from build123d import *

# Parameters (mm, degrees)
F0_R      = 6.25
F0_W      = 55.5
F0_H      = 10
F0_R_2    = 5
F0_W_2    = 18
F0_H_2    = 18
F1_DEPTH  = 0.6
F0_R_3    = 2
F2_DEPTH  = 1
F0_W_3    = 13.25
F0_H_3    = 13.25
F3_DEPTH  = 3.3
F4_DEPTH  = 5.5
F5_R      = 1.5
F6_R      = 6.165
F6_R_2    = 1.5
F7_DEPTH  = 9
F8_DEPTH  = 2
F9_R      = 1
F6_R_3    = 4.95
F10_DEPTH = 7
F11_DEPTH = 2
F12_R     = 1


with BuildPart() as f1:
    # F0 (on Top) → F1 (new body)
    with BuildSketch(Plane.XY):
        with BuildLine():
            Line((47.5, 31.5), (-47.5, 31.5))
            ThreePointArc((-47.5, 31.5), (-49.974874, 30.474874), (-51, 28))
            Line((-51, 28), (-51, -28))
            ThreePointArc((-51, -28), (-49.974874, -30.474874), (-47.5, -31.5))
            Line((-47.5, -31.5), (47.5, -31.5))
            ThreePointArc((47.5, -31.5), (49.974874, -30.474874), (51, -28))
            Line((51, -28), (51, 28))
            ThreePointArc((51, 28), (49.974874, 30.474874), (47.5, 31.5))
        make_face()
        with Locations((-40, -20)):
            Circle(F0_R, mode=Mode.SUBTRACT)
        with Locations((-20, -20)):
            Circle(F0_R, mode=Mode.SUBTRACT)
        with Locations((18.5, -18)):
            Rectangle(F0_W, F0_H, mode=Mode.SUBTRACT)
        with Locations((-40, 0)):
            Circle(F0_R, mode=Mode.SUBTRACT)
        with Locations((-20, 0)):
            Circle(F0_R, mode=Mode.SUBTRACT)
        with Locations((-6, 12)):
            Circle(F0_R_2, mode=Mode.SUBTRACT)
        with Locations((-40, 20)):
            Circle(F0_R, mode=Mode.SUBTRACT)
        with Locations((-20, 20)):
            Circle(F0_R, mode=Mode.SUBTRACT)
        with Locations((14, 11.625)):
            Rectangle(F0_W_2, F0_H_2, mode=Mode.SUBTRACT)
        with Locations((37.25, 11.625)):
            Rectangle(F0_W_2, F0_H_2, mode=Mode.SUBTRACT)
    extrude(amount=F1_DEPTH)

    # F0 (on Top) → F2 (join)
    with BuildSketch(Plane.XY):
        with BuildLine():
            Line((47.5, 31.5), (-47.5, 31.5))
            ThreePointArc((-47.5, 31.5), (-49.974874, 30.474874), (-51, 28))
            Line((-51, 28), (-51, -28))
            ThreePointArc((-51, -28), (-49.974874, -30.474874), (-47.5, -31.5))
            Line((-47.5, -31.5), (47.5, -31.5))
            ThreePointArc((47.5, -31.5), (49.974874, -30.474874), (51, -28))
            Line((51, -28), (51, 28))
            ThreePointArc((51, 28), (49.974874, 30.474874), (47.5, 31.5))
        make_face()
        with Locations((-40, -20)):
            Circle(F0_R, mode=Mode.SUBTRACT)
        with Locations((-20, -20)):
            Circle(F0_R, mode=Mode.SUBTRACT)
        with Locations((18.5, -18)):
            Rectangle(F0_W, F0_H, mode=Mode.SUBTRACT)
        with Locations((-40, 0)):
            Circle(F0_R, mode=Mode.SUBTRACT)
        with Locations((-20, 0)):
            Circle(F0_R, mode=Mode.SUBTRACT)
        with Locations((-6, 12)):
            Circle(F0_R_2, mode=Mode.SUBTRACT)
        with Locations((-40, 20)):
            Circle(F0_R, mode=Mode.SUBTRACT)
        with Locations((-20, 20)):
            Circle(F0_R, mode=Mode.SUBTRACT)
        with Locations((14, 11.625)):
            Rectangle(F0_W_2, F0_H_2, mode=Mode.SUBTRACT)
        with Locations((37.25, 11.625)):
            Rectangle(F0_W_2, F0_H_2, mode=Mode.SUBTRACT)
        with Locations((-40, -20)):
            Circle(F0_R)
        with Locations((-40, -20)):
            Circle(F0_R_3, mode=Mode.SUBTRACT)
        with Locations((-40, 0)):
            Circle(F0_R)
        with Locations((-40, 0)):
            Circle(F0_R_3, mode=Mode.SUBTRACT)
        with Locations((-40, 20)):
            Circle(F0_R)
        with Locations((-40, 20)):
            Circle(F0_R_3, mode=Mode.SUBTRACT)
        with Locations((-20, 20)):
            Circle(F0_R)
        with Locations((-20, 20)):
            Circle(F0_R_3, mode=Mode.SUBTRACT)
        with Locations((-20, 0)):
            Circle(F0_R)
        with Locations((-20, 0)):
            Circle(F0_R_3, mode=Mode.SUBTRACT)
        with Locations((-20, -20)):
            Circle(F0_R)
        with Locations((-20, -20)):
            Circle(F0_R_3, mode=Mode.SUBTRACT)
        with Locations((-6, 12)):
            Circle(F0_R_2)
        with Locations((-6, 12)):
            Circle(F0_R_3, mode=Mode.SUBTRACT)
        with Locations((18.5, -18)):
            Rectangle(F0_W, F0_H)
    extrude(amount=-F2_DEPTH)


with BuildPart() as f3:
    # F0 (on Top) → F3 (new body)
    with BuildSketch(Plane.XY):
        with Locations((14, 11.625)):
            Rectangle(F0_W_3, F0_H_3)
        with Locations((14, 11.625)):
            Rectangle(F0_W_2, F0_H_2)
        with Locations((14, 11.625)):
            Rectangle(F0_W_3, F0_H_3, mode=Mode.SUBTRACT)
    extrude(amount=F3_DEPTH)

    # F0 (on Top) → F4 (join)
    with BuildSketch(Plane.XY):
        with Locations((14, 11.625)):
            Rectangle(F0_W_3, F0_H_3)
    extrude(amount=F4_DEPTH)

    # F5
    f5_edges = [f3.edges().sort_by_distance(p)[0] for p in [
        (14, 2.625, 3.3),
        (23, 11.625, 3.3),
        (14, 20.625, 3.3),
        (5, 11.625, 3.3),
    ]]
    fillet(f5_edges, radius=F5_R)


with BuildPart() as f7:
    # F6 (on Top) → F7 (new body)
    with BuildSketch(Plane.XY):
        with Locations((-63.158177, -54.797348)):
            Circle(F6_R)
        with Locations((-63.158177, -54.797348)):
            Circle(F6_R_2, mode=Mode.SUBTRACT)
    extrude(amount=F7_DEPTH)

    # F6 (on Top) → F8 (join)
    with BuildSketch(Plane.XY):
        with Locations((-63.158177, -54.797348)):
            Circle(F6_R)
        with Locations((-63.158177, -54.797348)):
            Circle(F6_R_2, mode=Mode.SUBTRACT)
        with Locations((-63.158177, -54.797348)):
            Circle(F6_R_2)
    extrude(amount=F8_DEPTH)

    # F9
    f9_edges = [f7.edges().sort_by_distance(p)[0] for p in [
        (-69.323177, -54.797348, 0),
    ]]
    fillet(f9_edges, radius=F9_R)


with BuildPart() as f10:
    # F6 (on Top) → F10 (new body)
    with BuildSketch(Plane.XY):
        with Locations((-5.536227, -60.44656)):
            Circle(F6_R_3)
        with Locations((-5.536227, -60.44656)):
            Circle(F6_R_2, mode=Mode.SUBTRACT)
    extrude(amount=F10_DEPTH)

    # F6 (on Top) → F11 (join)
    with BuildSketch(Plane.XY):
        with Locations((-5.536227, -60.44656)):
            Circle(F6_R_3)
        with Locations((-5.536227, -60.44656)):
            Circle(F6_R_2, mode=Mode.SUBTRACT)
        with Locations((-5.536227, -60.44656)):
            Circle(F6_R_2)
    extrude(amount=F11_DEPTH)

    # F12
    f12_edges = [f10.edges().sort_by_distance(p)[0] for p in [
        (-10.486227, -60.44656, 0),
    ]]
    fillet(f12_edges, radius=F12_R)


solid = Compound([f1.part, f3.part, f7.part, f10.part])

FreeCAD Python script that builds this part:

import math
import FreeCAD as App
import Part
import Sketcher
Q = App.Units.Quantity


def edges_at(feature, points):
    """Names of the edges that pass closest to the given points."""
    edges = feature.Shape.Edges
    near = lambda p: min(range(len(edges)), key=lambda i: edges[i].distToShape(Part.Vertex(*p))[0])
    return sorted({f"Edge{near(p) + 1}" for p in points})


def add_polygon(sketch, points):
    """Adds a closed chain of lines whose ends are joined by coincident constraints."""
    first, n = sketch.GeometryCount, len(points)
    for a, b in zip(points, points[1:] + points[:1]):
        sketch.addGeometry(Part.LineSegment(App.Vector(*a, 0), App.Vector(*b, 0)), False)
    for i in range(n):
        sketch.addConstraint(Sketcher.Constraint("Coincident", first + i, 2, first + (i + 1) % n, 1))

doc = App.newDocument("Part")
body = doc.addObject("PartDesign::Body", "Body")

# Sketch on XY plane
sketch1 = body.newObject("Sketcher::SketchObject", "Sketch")
sketch1.AttachmentSupport = (doc.getObject("XY_Plane"), [""])
sketch1.MapMode = "FlatFace"
sketch1.addGeometry(Part.LineSegment(App.Vector(47.5, 31.5, 0), App.Vector(-47.5, 31.5, 0)), False)  # 0
sketch1.addGeometry(Part.ArcOfCircle(Part.Circle(App.Vector(-47.5, 28, 0), App.Vector(0, 0, 1), 3.5), math.radians(90), math.radians(180)), False)  # 1
sketch1.addGeometry(Part.LineSegment(App.Vector(-51, 28, 0), App.Vector(-51, -28, 0)), False)  # 2
sketch1.addGeometry(Part.ArcOfCircle(Part.Circle(App.Vector(-47.5, -28, 0), App.Vector(0, 0, 1), 3.5), math.radians(180), math.radians(270)), False)  # 3
sketch1.addGeometry(Part.LineSegment(App.Vector(-47.5, -31.5, 0), App.Vector(47.5, -31.5, 0)), False)  # 4
sketch1.addGeometry(Part.ArcOfCircle(Part.Circle(App.Vector(47.5, -28, 0), App.Vector(0, 0, 1), 3.5), math.radians(-90), math.radians(0)), False)  # 5
sketch1.addGeometry(Part.LineSegment(App.Vector(51, -28, 0), App.Vector(51, 28, 0)), False)  # 6
sketch1.addGeometry(Part.ArcOfCircle(Part.Circle(App.Vector(47.5, 28, 0), App.Vector(0, 0, 1), 3.5), math.radians(0), math.radians(90)), False)  # 7
sketch1.addGeometry(Part.Circle(App.Vector(-40, -20, 0), App.Vector(0, 0, 1), 6.2), False)  # 8
sketch1.addGeometry(Part.Circle(App.Vector(-20, -20, 0), App.Vector(0, 0, 1), 6.2), False)  # 9
add_polygon(sketch1, [(46.2, -23), (-9.2, -23), (-9.2, -13), (46.2, -13)])  # lines 10-13
sketch1.addGeometry(Part.Circle(App.Vector(-40, 0, 0), App.Vector(0, 0, 1), 6.2), False)  # 14
sketch1.addGeometry(Part.Circle(App.Vector(-20, 0, 0), App.Vector(0, 0, 1), 6.2), False)  # 15
sketch1.addGeometry(Part.Circle(App.Vector(-6, 12, 0), App.Vector(0, 0, 1), 5), False)  # 16
sketch1.addGeometry(Part.Circle(App.Vector(-40, 20, 0), App.Vector(0, 0, 1), 6.2), False)  # 17
sketch1.addGeometry(Part.Circle(App.Vector(-20, 20, 0), App.Vector(0, 0, 1), 6.2), False)  # 18
add_polygon(sketch1, [(23, 2.6), (5, 2.6), (5, 20.6), (23, 20.6)])  # lines 19-22
add_polygon(sketch1, [(46.2, 2.6), (28.2, 2.6), (28.2, 20.6), (46.2, 20.6)])  # lines 23-26
sketch1.addConstraint([
    Sketcher.Constraint("Tangent", 0, 2, 1, 1),
    Sketcher.Constraint("Tangent", 1, 2, 2, 1),
    Sketcher.Constraint("Tangent", 2, 2, 3, 1),
    Sketcher.Constraint("Tangent", 3, 2, 4, 1),
    Sketcher.Constraint("Tangent", 4, 2, 5, 1),
    Sketcher.Constraint("Tangent", 5, 2, 6, 1),
    Sketcher.Constraint("Tangent", 6, 2, 7, 1),
    Sketcher.Constraint("Tangent", 7, 2, 0, 1),
    Sketcher.Constraint("Horizontal", 0),
    Sketcher.Constraint("Vertical", 2),
    Sketcher.Constraint("Horizontal", 4),
    Sketcher.Constraint("Vertical", 6),
    Sketcher.Constraint("Horizontal", 10),
    Sketcher.Constraint("Vertical", 11),
    Sketcher.Constraint("Horizontal", 12),
    Sketcher.Constraint("Vertical", 13),
    Sketcher.Constraint("Horizontal", 19),
    Sketcher.Constraint("Vertical", 20),
    Sketcher.Constraint("Horizontal", 21),
    Sketcher.Constraint("Vertical", 22),
    Sketcher.Constraint("Horizontal", 23),
    Sketcher.Constraint("Vertical", 24),
    Sketcher.Constraint("Horizontal", 25),
    Sketcher.Constraint("Vertical", 26),
    Sketcher.Constraint("Equal", 1, 3),
    Sketcher.Constraint("Equal", 3, 5),
    Sketcher.Constraint("Equal", 5, 7),
    Sketcher.Constraint("Equal", 8, 9),
    Sketcher.Constraint("Equal", 9, 14),
    Sketcher.Constraint("Equal", 14, 15),
    Sketcher.Constraint("Equal", 15, 17),
    Sketcher.Constraint("Equal", 17, 18),
    Sketcher.Constraint("Symmetric", 1, 3, 5, 3, -1, 1),
    Sketcher.Constraint("Symmetric", 8, 3, 17, 3, -1),
    Sketcher.Constraint("Symmetric", 9, 3, 18, 3, -1),
    Sketcher.Constraint("PointOnObject", 14, 3, -1),
    Sketcher.Constraint("PointOnObject", 15, 3, -1),
    Sketcher.Constraint("Horizontal", 8, 3, 9, 3),
    Sketcher.Constraint("Horizontal", 22, 2, 23, 2),
    Sketcher.Constraint("Horizontal", 21, 2, 24, 2),
    Sketcher.Constraint("Vertical", 8, 3, 14, 3),
    Sketcher.Constraint("Vertical", 9, 3, 15, 3),
    Sketcher.Constraint("Vertical", 13, 2, 25, 2),
    Sketcher.Constraint("Equal", 21, 23),
    Sketcher.Constraint("Equal", 25, 20),
    Sketcher.Constraint("Diameter", 16, Q("10 mm")),
    Sketcher.Constraint("Diameter", 8, Q("12.5 mm")),
    Sketcher.Constraint("Radius", 1, Q("3.499999 mm")),
    Sketcher.Constraint("DistanceX", 0, 2, 0, 1, Q("95 mm")),
    Sketcher.Constraint("DistanceX", 19, 2, 19, 1, Q("18 mm")),
    Sketcher.Constraint("DistanceY", 2, 2, 2, 1, Q("56 mm")),
    Sketcher.Constraint("DistanceY", 11, 1, 11, 2, Q("10 mm")),
    Sketcher.Constraint("DistanceX", 10, 2, 10, 1, Q("55.5 mm")),
    Sketcher.Constraint("DistanceX", 8, 3, -1, 1, Q("40 mm")),
    Sketcher.Constraint("DistanceY", 8, 3, -1, 1, Q("20 mm")),
    Sketcher.Constraint("DistanceX", 9, 3, -1, 1, Q("20 mm")),
    Sketcher.Constraint("DistanceX", 16, 3, -1, 1, Q("6 mm")),
    Sketcher.Constraint("DistanceY", -1, 1, 16, 3, Q("12 mm")),
    Sketcher.Constraint("DistanceY", 10, 2, -1, 1, Q("23 mm")),
    Sketcher.Constraint("DistanceX", -1, 1, 19, 2, Q("5 mm")),
    Sketcher.Constraint("DistanceX", 10, 2, -1, 1, Q("9.25 mm")),
    Sketcher.Constraint("DistanceY", -1, 1, 19, 2, Q("2.625 mm")),
])
pad1 = body.newObject("PartDesign::Pad", "Pad")
pad1.Profile = sketch1
pad1.Length = 0.6

# Sketch on XY plane
sketch2 = body.newObject("Sketcher::SketchObject", "Sketch001")
sketch2.AttachmentSupport = (doc.getObject("XY_Plane"), [""])
sketch2.MapMode = "FlatFace"
sketch2.addGeometry(Part.LineSegment(App.Vector(47.5, 31.5, 0), App.Vector(-47.5, 31.5, 0)), False)  # 0
sketch2.addGeometry(Part.ArcOfCircle(Part.Circle(App.Vector(-47.5, 28, 0), App.Vector(0, 0, 1), 3.5), math.radians(90), math.radians(180)), False)  # 1
sketch2.addGeometry(Part.LineSegment(App.Vector(-51, 28, 0), App.Vector(-51, -28, 0)), False)  # 2
sketch2.addGeometry(Part.ArcOfCircle(Part.Circle(App.Vector(-47.5, -28, 0), App.Vector(0, 0, 1), 3.5), math.radians(180), math.radians(270)), False)  # 3
sketch2.addGeometry(Part.LineSegment(App.Vector(-47.5, -31.5, 0), App.Vector(47.5, -31.5, 0)), False)  # 4
sketch2.addGeometry(Part.ArcOfCircle(Part.Circle(App.Vector(47.5, -28, 0), App.Vector(0, 0, 1), 3.5), math.radians(-90), math.radians(0)), False)  # 5
sketch2.addGeometry(Part.LineSegment(App.Vector(51, -28, 0), App.Vector(51, 28, 0)), False)  # 6
sketch2.addGeometry(Part.ArcOfCircle(Part.Circle(App.Vector(47.5, 28, 0), App.Vector(0, 0, 1), 3.5), math.radians(0), math.radians(90)), False)  # 7
sketch2.addGeometry(Part.Circle(App.Vector(-40, -20, 0), App.Vector(0, 0, 1), 2), False)  # 8
sketch2.addGeometry(Part.Circle(App.Vector(-20, -20, 0), App.Vector(0, 0, 1), 2), False)  # 9
sketch2.addGeometry(Part.Circle(App.Vector(-40, 0, 0), App.Vector(0, 0, 1), 2), False)  # 10
sketch2.addGeometry(Part.Circle(App.Vector(-20, 0, 0), App.Vector(0, 0, 1), 2), False)  # 11
sketch2.addGeometry(Part.Circle(App.Vector(-40, 20, 0), App.Vector(0, 0, 1), 2), False)  # 12
sketch2.addGeometry(Part.Circle(App.Vector(-20, 20, 0), App.Vector(0, 0, 1), 2), False)  # 13
sketch2.addGeometry(Part.Circle(App.Vector(-6, 12, 0), App.Vector(0, 0, 1), 2), False)  # 14
add_polygon(sketch2, [(23, 2.6), (5, 2.6), (5, 20.6), (23, 20.6)])  # lines 15-18
add_polygon(sketch2, [(46.2, 2.6), (28.2, 2.6), (28.2, 20.6), (46.2, 20.6)])  # lines 19-22
sketch2.addConstraint([
    Sketcher.Constraint("Tangent", 0, 2, 1, 1),
    Sketcher.Constraint("Tangent", 1, 2, 2, 1),
    Sketcher.Constraint("Tangent", 2, 2, 3, 1),
    Sketcher.Constraint("Tangent", 3, 2, 4, 1),
    Sketcher.Constraint("Tangent", 4, 2, 5, 1),
    Sketcher.Constraint("Tangent", 5, 2, 6, 1),
    Sketcher.Constraint("Tangent", 6, 2, 7, 1),
    Sketcher.Constraint("Tangent", 7, 2, 0, 1),
    Sketcher.Constraint("Horizontal", 0),
    Sketcher.Constraint("Vertical", 2),
    Sketcher.Constraint("Horizontal", 4),
    Sketcher.Constraint("Vertical", 6),
    Sketcher.Constraint("Horizontal", 15),
    Sketcher.Constraint("Vertical", 16),
    Sketcher.Constraint("Horizontal", 17),
    Sketcher.Constraint("Vertical", 18),
    Sketcher.Constraint("Horizontal", 19),
    Sketcher.Constraint("Vertical", 20),
    Sketcher.Constraint("Horizontal", 21),
    Sketcher.Constraint("Vertical", 22),
    Sketcher.Constraint("Equal", 1, 3),
    Sketcher.Constraint("Equal", 3, 5),
    Sketcher.Constraint("Equal", 5, 7),
    Sketcher.Constraint("Equal", 8, 9),
    Sketcher.Constraint("Equal", 9, 10),
    Sketcher.Constraint("Equal", 10, 11),
    Sketcher.Constraint("Equal", 11, 12),
    Sketcher.Constraint("Equal", 12, 13),
    Sketcher.Constraint("Equal", 13, 14),
    Sketcher.Constraint("Symmetric", 1, 3, 5, 3, -1, 1),
    Sketcher.Constraint("Symmetric", 8, 3, 12, 3, -1),
    Sketcher.Constraint("Symmetric", 9, 3, 13, 3, -1),
    Sketcher.Constraint("PointOnObject", 10, 3, -1),
    Sketcher.Constraint("PointOnObject", 11, 3, -1),
    Sketcher.Constraint("Horizontal", 8, 3, 9, 3),
    Sketcher.Constraint("Horizontal", 18, 2, 19, 2),
    Sketcher.Constraint("Horizontal", 17, 2, 20, 2),
    Sketcher.Constraint("Vertical", 8, 3, 10, 3),
    Sketcher.Constraint("Vertical", 9, 3, 11, 3),
    Sketcher.Constraint("Equal", 17, 19),
    Sketcher.Constraint("Equal", 21, 16),
    Sketcher.Constraint("Diameter", 8, Q("4 mm")),
    Sketcher.Constraint("Radius", 1, Q("3.499999 mm")),
    Sketcher.Constraint("DistanceX", 0, 2, 0, 1, Q("95 mm")),
    Sketcher.Constraint("DistanceX", 15, 2, 15, 1, Q("18 mm")),
    Sketcher.Constraint("DistanceY", 2, 2, 2, 1, Q("56 mm")),
    Sketcher.Constraint("DistanceX", 8, 3, -1, 1, Q("40 mm")),
    Sketcher.Constraint("DistanceY", 8, 3, -1, 1, Q("20 mm")),
    Sketcher.Constraint("DistanceX", 9, 3, -1, 1, Q("20 mm")),
    Sketcher.Constraint("DistanceX", 14, 3, -1, 1, Q("6 mm")),
    Sketcher.Constraint("DistanceY", -1, 1, 14, 3, Q("12 mm")),
    Sketcher.Constraint("DistanceX", -1, 1, 15, 2, Q("5 mm")),
    Sketcher.Constraint("DistanceX", -1, 1, 19, 2, Q("28.25 mm")),
    Sketcher.Constraint("DistanceY", -1, 1, 15, 2, Q("2.625 mm")),
])
pad2 = body.newObject("PartDesign::Pad", "Pad001")
pad2.Profile = sketch2
pad2.Length = 1
pad2.Reversed = True
body2 = doc.addObject("PartDesign::Body", "Body001")

# Sketch on XY plane
sketch3 = body2.newObject("Sketcher::SketchObject", "Sketch002")
sketch3.AttachmentSupport = (doc.getObject("XY_Plane001"), [""])
sketch3.MapMode = "FlatFace"
add_polygon(sketch3, [(5, 21), (5, 3), (23, 3), (23, 21)])  # lines 0-3
add_polygon(sketch3, [(21, 5), (7, 5), (7, 18), (21, 18)])  # lines 4-7
sketch3.addConstraint([
    Sketcher.Constraint("Vertical", 0),
    Sketcher.Constraint("Horizontal", 1),
    Sketcher.Constraint("Vertical", 2),
    Sketcher.Constraint("Horizontal", 3),
    Sketcher.Constraint("Horizontal", 4),
    Sketcher.Constraint("Vertical", 5),
    Sketcher.Constraint("Horizontal", 6),
    Sketcher.Constraint("Vertical", 7),
    Sketcher.Constraint("Equal", 3, 0),
    Sketcher.Constraint("Equal", 6, 5),
    Sketcher.Constraint("DistanceX", 1, 1, 1, 2, Q("18 mm")),
    Sketcher.Constraint("DistanceX", -1, 1, 0, 2, Q("5 mm")),
    Sketcher.Constraint("DistanceY", -1, 1, 4, 2, Q("5 mm")),
    Sketcher.Constraint("DistanceX", 4, 2, 4, 1, Q("13.25 mm")),
    Sketcher.Constraint("DistanceY", -1, 1, 0, 2, Q("2.625 mm")),
    Sketcher.Constraint("DistanceX", -1, 1, 4, 2, Q("7.375 mm")),
])
pad3 = body2.newObject("PartDesign::Pad", "Pad002")
pad3.Profile = sketch3
pad3.Length = 3.3

# Sketch on XY plane
sketch4 = body2.newObject("Sketcher::SketchObject", "Sketch003")
sketch4.AttachmentSupport = (doc.getObject("XY_Plane001"), [""])
sketch4.MapMode = "FlatFace"
add_polygon(sketch4, [(7, 18), (7, 5), (21, 5), (21, 18)])  # lines 0-3
sketch4.addConstraint([
    Sketcher.Constraint("Vertical", 0),
    Sketcher.Constraint("Horizontal", 1),
    Sketcher.Constraint("Vertical", 2),
    Sketcher.Constraint("Horizontal", 3),
    Sketcher.Constraint("Equal", 3, 0),
    Sketcher.Constraint("DistanceY", -1, 1, 0, 2, Q("5 mm")),
    Sketcher.Constraint("DistanceX", 1, 1, 1, 2, Q("13.25 mm")),
    Sketcher.Constraint("DistanceX", -1, 1, 0, 2, Q("7.375 mm")),
])
pad4 = body2.newObject("PartDesign::Pad", "Pad003")
pad4.Profile = sketch4
pad4.Length = 5.5
doc.recompute()

fillet = body2.newObject("PartDesign::Fillet", "Fillet")
fillet.Base = (pad4, edges_at(pad4, [
    (14, 2.625, 3.3),
    (23, 11.625, 3.3),
    (14, 20.625, 3.3),
    (5, 11.625, 3.3),
]))
fillet.Radius = 1.5
body3 = doc.addObject("PartDesign::Body", "Body002")

# Sketch on XY plane
sketch5 = body3.newObject("Sketcher::SketchObject", "Sketch004")
sketch5.AttachmentSupport = (doc.getObject("XY_Plane002"), [""])
sketch5.MapMode = "FlatFace"
sketch5.addGeometry([
    Part.Circle(App.Vector(-63.2, -54.8, 0), App.Vector(0, 0, 1), 6.2),
    Part.Circle(App.Vector(-63.2, -54.8, 0), App.Vector(0, 0, 1), 1.5),
], False)
sketch5.addConstraint([
    Sketcher.Constraint("Coincident", 1, 3, 0, 3),
    Sketcher.Constraint("Diameter", 1, Q("3 mm")),
    Sketcher.Constraint("Diameter", 0, Q("12.33 mm")),
    Sketcher.Constraint("DistanceX", 0, 3, -1, 1, Q("63.158177 mm")),
    Sketcher.Constraint("DistanceY", 0, 3, -1, 1, Q("54.797348 mm")),
])
pad5 = body3.newObject("PartDesign::Pad", "Pad004")
pad5.Profile = sketch5
pad5.Length = 9

# Sketch on XY plane
sketch6 = body3.newObject("Sketcher::SketchObject", "Sketch005")
sketch6.AttachmentSupport = (doc.getObject("XY_Plane002"), [""])
sketch6.MapMode = "FlatFace"
sketch6.addGeometry(Part.Circle(App.Vector(-63, -55, 0), App.Vector(0, 0, 1), 6), False)
sketch6.addConstraint([
    Sketcher.Constraint("Diameter", 0, Q("12.33 mm")),
    Sketcher.Constraint("DistanceX", 0, 3, -1, 1, Q("63.158177 mm")),
    Sketcher.Constraint("DistanceY", 0, 3, -1, 1, Q("54.797348 mm")),
])
pad6 = body3.newObject("PartDesign::Pad", "Pad005")
pad6.Profile = sketch6
pad6.Length = 2
doc.recompute()

fillet2 = body3.newObject("PartDesign::Fillet", "Fillet001")
fillet2.Base = (pad6, edges_at(pad6, [(-69.323, -54.797, 0)]))
fillet2.Radius = 1
body4 = doc.addObject("PartDesign::Body", "Body003")

# Sketch on XY plane
sketch7 = body4.newObject("Sketcher::SketchObject", "Sketch006")
sketch7.AttachmentSupport = (doc.getObject("XY_Plane003"), [""])
sketch7.MapMode = "FlatFace"
sketch7.addGeometry([
    Part.Circle(App.Vector(-5.5, -60.4, 0), App.Vector(0, 0, 1), 5),
    Part.Circle(App.Vector(-5.5, -60.4, 0), App.Vector(0, 0, 1), 1.5),
], False)
sketch7.addConstraint([
    Sketcher.Constraint("Coincident", 1, 3, 0, 3),
    Sketcher.Constraint("Diameter", 1, Q("3 mm")),
    Sketcher.Constraint("Diameter", 0, Q("9.9 mm")),
    Sketcher.Constraint("DistanceY", 0, 3, -1, 1, Q("60.44656 mm")),
    Sketcher.Constraint("DistanceX", 0, 3, -1, 1, Q("5.536227 mm")),
])
pad7 = body4.newObject("PartDesign::Pad", "Pad006")
pad7.Profile = sketch7
pad7.Length = 7

# Sketch on XY plane
sketch8 = body4.newObject("Sketcher::SketchObject", "Sketch007")
sketch8.AttachmentSupport = (doc.getObject("XY_Plane003"), [""])
sketch8.MapMode = "FlatFace"
sketch8.addGeometry(Part.Circle(App.Vector(-5.5, -60.4, 0), App.Vector(0, 0, 1), 5), False)
sketch8.addConstraint([
    Sketcher.Constraint("Diameter", 0, Q("9.9 mm")),
    Sketcher.Constraint("DistanceY", 0, 3, -1, 1, Q("60.44656 mm")),
    Sketcher.Constraint("DistanceX", 0, 3, -1, 1, Q("5.536227 mm")),
])
pad8 = body4.newObject("PartDesign::Pad", "Pad007")
pad8.Profile = sketch8
pad8.Length = 2
doc.recompute()

fillet3 = body4.newObject("PartDesign::Fillet", "Fillet002")
fillet3.Base = (pad8, edges_at(pad8, [(-10.486, -60.447, 0)]))
fillet3.Radius = 1

doc.recompute()
